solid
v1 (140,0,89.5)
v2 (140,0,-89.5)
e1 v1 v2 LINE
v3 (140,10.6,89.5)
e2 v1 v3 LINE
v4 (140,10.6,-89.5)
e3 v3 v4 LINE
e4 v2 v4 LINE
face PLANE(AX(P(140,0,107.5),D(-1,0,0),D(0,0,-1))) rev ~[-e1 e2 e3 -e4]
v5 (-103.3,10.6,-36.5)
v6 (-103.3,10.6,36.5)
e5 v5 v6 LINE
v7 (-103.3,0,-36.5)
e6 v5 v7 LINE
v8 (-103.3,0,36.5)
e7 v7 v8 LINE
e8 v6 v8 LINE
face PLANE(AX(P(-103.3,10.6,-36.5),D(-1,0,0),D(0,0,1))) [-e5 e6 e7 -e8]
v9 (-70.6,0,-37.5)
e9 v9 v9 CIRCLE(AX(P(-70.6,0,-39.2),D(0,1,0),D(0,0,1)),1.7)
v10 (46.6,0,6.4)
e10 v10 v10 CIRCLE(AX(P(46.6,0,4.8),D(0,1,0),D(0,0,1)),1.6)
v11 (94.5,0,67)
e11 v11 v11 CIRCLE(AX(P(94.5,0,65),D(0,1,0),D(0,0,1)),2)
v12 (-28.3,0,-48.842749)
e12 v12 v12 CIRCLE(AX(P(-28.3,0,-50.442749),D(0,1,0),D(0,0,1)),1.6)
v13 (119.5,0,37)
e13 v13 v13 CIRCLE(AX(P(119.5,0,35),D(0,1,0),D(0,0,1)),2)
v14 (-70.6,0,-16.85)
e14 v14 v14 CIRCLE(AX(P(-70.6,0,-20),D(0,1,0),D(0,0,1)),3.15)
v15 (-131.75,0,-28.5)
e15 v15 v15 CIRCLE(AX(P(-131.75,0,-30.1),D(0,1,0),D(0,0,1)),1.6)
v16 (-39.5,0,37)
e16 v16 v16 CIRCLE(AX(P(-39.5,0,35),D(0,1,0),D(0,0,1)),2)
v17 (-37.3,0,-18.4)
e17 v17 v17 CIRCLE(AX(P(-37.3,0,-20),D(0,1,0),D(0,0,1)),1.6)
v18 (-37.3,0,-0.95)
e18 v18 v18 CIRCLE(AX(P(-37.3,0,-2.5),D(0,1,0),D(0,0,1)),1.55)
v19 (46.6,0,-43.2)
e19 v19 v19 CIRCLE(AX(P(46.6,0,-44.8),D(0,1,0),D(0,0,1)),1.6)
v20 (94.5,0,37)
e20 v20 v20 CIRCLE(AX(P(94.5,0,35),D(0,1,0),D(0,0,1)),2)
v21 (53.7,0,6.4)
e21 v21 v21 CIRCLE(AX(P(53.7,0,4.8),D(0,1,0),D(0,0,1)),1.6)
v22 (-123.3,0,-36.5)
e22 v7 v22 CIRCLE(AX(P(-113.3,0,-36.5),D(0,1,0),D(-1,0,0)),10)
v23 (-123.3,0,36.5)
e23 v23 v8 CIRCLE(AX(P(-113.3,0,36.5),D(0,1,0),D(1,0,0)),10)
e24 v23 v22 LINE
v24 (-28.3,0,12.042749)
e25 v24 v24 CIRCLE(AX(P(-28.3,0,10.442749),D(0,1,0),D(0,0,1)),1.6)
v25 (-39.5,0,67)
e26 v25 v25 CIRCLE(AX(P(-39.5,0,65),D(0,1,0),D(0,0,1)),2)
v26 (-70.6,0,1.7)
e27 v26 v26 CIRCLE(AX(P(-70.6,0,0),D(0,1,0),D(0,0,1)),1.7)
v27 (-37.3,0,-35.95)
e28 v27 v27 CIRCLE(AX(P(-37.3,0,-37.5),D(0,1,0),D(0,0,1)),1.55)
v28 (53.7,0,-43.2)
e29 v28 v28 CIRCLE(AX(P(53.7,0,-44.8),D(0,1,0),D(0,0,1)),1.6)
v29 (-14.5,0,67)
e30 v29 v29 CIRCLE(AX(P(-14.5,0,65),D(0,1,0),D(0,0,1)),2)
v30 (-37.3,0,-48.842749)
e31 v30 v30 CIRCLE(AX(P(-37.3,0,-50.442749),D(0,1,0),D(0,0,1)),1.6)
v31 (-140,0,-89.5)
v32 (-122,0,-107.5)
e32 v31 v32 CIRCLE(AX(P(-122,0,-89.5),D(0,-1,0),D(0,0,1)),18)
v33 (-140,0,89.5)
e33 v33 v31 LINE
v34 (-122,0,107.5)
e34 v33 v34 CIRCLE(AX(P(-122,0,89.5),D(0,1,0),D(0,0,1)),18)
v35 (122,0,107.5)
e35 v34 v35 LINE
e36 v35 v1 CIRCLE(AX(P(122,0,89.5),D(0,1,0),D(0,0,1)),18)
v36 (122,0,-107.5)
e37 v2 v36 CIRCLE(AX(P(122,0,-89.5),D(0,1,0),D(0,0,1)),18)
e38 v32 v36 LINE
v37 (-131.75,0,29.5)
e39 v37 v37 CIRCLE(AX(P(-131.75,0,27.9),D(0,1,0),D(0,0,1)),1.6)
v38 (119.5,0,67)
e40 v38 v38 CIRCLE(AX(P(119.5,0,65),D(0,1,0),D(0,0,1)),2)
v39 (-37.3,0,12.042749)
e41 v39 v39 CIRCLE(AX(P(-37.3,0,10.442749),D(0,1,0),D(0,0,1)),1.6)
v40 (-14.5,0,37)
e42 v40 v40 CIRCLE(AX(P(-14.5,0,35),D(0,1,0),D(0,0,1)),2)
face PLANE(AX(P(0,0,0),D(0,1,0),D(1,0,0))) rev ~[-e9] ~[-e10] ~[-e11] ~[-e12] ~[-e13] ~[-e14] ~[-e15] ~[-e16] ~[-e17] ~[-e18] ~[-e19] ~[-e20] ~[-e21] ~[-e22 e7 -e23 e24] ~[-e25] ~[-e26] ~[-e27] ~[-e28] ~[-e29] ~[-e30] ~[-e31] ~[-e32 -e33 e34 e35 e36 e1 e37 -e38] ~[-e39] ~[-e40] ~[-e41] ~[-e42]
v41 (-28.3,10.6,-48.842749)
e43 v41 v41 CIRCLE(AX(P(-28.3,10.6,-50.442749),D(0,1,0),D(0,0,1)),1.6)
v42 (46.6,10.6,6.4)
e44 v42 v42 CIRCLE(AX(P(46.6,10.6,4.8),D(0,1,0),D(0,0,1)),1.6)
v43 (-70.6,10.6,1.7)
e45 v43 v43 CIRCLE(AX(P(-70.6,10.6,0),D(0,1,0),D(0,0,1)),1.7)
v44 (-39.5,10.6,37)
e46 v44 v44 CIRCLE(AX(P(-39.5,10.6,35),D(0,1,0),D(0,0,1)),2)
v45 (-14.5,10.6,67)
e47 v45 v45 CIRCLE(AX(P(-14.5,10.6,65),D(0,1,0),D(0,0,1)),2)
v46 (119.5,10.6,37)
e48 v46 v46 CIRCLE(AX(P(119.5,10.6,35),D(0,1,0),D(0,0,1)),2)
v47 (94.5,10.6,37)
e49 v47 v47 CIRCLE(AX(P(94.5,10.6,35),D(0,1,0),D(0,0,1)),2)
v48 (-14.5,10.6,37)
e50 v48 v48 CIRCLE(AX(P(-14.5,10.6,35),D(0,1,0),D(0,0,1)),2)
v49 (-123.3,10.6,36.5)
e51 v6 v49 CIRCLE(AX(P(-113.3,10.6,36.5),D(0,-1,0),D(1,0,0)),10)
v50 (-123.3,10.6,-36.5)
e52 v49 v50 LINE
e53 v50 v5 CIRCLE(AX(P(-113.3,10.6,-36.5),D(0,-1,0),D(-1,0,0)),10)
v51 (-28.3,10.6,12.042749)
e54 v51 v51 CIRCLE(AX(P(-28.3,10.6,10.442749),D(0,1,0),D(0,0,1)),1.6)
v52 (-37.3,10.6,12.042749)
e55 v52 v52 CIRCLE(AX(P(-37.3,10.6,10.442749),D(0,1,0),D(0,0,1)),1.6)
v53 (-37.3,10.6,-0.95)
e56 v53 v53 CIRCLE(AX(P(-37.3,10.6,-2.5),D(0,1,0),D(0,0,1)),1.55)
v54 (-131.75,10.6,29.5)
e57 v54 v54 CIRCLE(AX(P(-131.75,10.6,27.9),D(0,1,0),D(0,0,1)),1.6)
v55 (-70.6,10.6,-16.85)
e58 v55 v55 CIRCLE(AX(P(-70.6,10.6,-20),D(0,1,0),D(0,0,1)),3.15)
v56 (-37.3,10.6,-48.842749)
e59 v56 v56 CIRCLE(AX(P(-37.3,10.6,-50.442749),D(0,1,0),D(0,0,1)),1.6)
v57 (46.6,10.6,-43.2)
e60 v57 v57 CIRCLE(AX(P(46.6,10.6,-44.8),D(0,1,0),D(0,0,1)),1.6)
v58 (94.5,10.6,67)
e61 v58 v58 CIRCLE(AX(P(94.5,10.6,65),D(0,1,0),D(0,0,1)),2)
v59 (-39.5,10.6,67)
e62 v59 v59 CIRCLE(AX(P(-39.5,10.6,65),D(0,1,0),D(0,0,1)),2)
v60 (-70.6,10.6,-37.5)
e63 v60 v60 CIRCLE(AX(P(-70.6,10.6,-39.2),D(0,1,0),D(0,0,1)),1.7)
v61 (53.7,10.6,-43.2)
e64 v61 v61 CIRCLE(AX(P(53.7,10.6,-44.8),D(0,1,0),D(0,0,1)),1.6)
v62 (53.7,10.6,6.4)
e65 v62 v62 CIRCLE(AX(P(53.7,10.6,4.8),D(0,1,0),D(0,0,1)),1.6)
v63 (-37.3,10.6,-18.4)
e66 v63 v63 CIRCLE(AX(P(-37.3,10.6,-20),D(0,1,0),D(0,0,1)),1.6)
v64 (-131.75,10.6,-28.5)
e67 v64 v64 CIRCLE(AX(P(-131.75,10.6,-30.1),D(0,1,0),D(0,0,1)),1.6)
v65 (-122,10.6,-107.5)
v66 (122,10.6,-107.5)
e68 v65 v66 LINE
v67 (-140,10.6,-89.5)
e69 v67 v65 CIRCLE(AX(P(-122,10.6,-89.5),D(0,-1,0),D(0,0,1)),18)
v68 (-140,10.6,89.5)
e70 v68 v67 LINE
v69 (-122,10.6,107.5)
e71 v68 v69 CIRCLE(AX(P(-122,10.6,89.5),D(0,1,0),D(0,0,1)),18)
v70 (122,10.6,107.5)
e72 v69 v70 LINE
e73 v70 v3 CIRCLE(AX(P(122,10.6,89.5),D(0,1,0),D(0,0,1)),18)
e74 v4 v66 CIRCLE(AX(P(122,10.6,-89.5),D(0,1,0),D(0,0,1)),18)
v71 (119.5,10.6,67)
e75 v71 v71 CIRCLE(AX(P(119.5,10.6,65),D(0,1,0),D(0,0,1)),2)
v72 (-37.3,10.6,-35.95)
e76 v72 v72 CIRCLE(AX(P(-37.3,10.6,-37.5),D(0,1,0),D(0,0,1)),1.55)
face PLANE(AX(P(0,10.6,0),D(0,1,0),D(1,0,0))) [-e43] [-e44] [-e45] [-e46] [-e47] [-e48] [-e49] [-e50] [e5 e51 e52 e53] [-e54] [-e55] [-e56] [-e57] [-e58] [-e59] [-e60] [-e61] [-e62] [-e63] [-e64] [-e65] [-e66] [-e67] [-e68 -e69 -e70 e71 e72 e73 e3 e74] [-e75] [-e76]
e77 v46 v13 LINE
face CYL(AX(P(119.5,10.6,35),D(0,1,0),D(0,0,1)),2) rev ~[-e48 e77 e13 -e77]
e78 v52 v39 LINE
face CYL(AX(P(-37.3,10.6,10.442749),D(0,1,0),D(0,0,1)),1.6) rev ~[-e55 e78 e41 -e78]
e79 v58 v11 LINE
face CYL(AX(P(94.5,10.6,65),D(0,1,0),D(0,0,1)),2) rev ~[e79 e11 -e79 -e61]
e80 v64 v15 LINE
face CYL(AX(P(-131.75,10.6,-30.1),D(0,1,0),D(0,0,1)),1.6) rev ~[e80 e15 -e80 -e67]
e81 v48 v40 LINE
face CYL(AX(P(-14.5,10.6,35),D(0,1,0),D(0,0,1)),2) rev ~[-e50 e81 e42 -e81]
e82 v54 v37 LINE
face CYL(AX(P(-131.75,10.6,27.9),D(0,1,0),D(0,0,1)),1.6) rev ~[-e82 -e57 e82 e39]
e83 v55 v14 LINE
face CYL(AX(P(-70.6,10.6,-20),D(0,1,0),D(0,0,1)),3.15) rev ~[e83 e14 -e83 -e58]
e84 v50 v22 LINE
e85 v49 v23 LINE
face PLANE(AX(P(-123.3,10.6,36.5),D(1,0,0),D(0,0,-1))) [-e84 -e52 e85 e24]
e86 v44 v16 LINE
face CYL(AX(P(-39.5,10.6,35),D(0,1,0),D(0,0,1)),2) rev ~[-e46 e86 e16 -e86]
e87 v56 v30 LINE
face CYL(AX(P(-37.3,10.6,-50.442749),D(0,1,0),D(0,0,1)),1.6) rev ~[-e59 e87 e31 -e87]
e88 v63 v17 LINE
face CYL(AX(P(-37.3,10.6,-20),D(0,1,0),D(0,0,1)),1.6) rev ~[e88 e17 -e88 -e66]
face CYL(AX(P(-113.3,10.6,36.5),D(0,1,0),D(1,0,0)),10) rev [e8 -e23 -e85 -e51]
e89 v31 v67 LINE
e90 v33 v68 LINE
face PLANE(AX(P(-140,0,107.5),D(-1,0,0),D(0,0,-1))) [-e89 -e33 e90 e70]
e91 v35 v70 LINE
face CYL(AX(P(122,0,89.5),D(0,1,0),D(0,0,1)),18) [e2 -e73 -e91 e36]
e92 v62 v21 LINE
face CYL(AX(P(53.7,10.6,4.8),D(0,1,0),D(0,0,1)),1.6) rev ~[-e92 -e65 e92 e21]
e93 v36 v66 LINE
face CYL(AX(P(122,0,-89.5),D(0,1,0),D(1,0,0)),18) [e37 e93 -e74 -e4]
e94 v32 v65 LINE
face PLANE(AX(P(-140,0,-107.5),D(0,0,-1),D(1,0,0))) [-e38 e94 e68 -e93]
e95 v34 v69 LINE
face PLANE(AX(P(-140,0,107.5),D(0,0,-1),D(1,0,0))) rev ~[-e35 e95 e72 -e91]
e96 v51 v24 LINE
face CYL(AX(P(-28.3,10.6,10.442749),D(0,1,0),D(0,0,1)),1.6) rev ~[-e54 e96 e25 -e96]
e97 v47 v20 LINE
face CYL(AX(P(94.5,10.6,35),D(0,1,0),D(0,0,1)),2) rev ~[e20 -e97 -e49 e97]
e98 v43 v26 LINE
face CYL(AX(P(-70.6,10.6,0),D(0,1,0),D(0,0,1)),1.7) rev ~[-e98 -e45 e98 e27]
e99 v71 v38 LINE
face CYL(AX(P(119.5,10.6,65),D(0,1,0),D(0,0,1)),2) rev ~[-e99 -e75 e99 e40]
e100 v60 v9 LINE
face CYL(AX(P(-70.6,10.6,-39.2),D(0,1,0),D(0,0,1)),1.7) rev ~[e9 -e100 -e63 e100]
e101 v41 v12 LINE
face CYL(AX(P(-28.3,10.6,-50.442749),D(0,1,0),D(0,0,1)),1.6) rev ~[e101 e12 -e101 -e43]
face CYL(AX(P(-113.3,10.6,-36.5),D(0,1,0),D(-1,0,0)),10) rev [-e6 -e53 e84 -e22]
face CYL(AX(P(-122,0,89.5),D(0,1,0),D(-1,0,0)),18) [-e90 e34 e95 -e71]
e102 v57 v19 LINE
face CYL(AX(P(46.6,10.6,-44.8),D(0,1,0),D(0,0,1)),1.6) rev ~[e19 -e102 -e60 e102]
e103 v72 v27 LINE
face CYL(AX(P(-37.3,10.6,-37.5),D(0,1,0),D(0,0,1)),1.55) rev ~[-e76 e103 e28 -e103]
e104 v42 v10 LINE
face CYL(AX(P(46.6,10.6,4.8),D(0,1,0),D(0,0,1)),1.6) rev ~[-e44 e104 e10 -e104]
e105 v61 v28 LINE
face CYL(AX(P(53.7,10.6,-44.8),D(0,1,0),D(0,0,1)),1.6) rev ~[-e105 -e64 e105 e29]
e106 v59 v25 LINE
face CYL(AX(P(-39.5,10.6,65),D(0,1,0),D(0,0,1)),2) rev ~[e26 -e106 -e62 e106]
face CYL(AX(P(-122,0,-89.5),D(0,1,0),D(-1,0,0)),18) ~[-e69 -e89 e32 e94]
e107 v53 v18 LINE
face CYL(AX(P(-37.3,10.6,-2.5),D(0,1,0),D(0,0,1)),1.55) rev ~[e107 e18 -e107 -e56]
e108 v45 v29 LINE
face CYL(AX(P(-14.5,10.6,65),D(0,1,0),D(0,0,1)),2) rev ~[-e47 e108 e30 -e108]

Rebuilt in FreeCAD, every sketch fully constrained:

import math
import FreeCAD as App
import Part
import Sketcher
from FreeCAD import Vector
Q = App.Units.Quantity


def edges_at(feature, points):
    """Names of the edges that pass closest to the given points."""
    edges = feature.Shape.Edges
    near = lambda p: min(range(len(edges)), key=lambda i: edges[i].distToShape(Part.Vertex(*p))[0])
    return sorted({f"Edge{near(p) + 1}" for p in points})

doc = App.newDocument("Part")
body = doc.addObject("PartDesign::Body", "Body")

# Sketch on XZ plane
sketch1 = body.newObject("Sketcher::SketchObject", "Sketch")
sketch1.AttachmentSupport = (doc.getObject("XZ_Plane"), [""])
sketch1.MapMode = "FlatFace"
sketch1.addGeometry([
    Part.LineSegment(Vector(-140, -107.5, 0), Vector(-140, 107.5, 0)),
    Part.LineSegment(Vector(-140, 107.5, 0), Vector(140, 107.5, 0)),
    Part.LineSegment(Vector(140, 107.5, 0), Vector(140, -107.5, 0)),
    Part.LineSegment(Vector(140, -107.5, 0), Vector(-140, -107.5, 0)),
], False)
sketch1.addConstraint([
    Sketcher.Constraint("Coincident", 0, 2, 1, 1),
    Sketcher.Constraint("Coincident", 1, 2, 2, 1),
    Sketcher.Constraint("Coincident", 2, 2, 3, 1),
    Sketcher.Constraint("Coincident", 3, 2, 0, 1),
    Sketcher.Constraint("Vertical", 0),
    Sketcher.Constraint("Horizontal", 1),
    Sketcher.Constraint("Vertical", 2),
    Sketcher.Constraint("Horizontal", 3),
    Sketcher.Constraint("Symmetric", 0, 2, 2, 2, -1, 1),
    Sketcher.Constraint("DistanceX", 1, 1, 1, 2, Q("280 mm")),
    Sketcher.Constraint("DistanceY", 0, 1, 0, 2, Q("215 mm")),
])
pad1 = body.newObject("PartDesign::Pad", "Pad")
pad1.Profile = sketch1
pad1.Length = 10.6
pad1.Reversed = True
doc.recompute()

fillet = body.newObject("PartDesign::Fillet", "Fillet")
fillet.Base = (pad1, edges_at(pad1, [
    (-140, 5.3, -107.5),
    (140, 5.3, -107.5),
    (140, 5.3, 107.5),
    (-140, 5.3, 107.5),
]))
fillet.Radius = 18

# Sketch on XZ plane
sketch2 = body.newObject("Sketcher::SketchObject", "Sketch001")
sketch2.AttachmentSupport = (doc.getObject("XZ_Plane"), [""])
sketch2.MapMode = "FlatFace"
sketch2.AttachmentOffset = App.Placement(Vector(0, 0, -10.6), App.Rotation())
sketch2.addGeometry([
    Part.LineSegment(Vector(-123.3, -36.5, 0), Vector(-123.3, 36.5, 0)),
    Part.ArcOfCircle(Part.Circle(Vector(-113.3, 36.5, 0), Vector(0, 0, 1), 10), math.radians(0), math.radians(180)),
    Part.LineSegment(Vector(-103.3, 36.5, 0), Vector(-103.3, -36.5, 0)),
    Part.ArcOfCircle(Part.Circle(Vector(-113.3, -36.5, 0), Vector(0, 0, 1), 10), math.radians(180), math.radians(360)),
], False)
sketch2.addConstraint([
    Sketcher.Constraint("Tangent", 0, 2, 1, 2),
    Sketcher.Constraint("Tangent", 1, 1, 2, 1),
    Sketcher.Constraint("Tangent", 2, 2, 3, 2),
    Sketcher.Constraint("Tangent", 3, 1, 0, 1),
    Sketcher.Constraint("Vertical", 0),
    Sketcher.Constraint("Vertical", 2),
    Sketcher.Constraint("Radius", 1, Q("10 mm")),
    Sketcher.Constraint("DistanceY", 0, 1, 0, 2, Q("73 mm")),
    Sketcher.Constraint("DistanceX", 1, 3, -1, 1, Q("113.3 mm")),
    Sketcher.Constraint("DistanceY", -1, 1, 1, 3, Q("36.5 mm")),
])
pocket1 = body.newObject("PartDesign::Pocket", "Pocket")
pocket1.Profile = sketch2
pocket1.Type = "ThroughAll"
pocket1.Reversed = True

# Sketch on XZ plane
sketch3 = body.newObject("Sketcher::SketchObject", "Sketch002")
sketch3.AttachmentSupport = (doc.getObject("XZ_Plane"), [""])
sketch3.MapMode = "FlatFace"
sketch3.AttachmentOffset = App.Placement(Vector(0, 0, -10.6), App.Rotation())
sketch3.addGeometry([
    Part.Circle(Vector(-131.75, 27.9, 0), Vector(0, 0, 1), 1.6),  # 0
    Part.Circle(Vector(-131.75, -30.1, 0), Vector(0, 0, 1), 1.6),  # 1
    Part.Circle(Vector(-70.6, -20, 0), Vector(0, 0, 1), 3.15),  # 2
    Part.Circle(Vector(-70.6, 0, 0), Vector(0, 0, 1), 1.7),  # 3
    Part.Circle(Vector(-28.3, 10.442749, 0), Vector(0, 0, 1), 1.6),  # 4
    Part.Circle(Vector(-37.3, 10.442749, 0), Vector(0, 0, 1), 1.6),  # 5
    Part.Circle(Vector(-37.3, -2.5, 0), Vector(0, 0, 1), 1.55),  # 6
    Part.Circle(Vector(-37.3, -20, 0), Vector(0, 0, 1), 1.6),  # 7
    Part.Circle(Vector(-37.3, -37.5, 0), Vector(0, 0, 1), 1.55),  # 8
    Part.Circle(Vector(-28.3, -50.442749, 0), Vector(0, 0, 1), 1.6),  # 9
    Part.Circle(Vector(-37.3, -50.442749, 0), Vector(0, 0, 1), 1.6),  # 10
    Part.Circle(Vector(46.6, 4.8, 0), Vector(0, 0, 1), 1.6),  # 11
    Part.Circle(Vector(46.6, -44.8, 0), Vector(0, 0, 1), 1.6),  # 12
    Part.Circle(Vector(-70.6, -39.2, 0), Vector(0, 0, 1), 1.7),  # 13
    Part.Circle(Vector(53.7, -44.8, 0), Vector(0, 0, 1), 1.6),  # 14
    Part.Circle(Vector(53.7, 4.8, 0), Vector(0, 0, 1), 1.6),  # 15
    Part.Circle(Vector(-39.5, 35, 0), Vector(0, 0, 1), 2),  # 16
    Part.Circle(Vector(-14.5, 35, 0), Vector(0, 0, 1), 2),  # 17
    Part.Circle(Vector(-39.5, 65, 0), Vector(0, 0, 1), 2),  # 18
    Part.Circle(Vector(-14.5, 65, 0), Vector(0, 0, 1), 2),  # 19
    Part.Circle(Vector(94.5, 35, 0), Vector(0, 0, 1), 2),  # 20
    Part.Circle(Vector(119.5, 35, 0), Vector(0, 0, 1), 2),  # 21
    Part.Circle(Vector(94.5, 65, 0), Vector(0, 0, 1), 2),  # 22
    Part.Circle(Vector(119.5, 65, 0), Vector(0, 0, 1), 2),  # 23
], False)
sketch3.addConstraint([
    Sketcher.Constraint("Equal", 0, 1),
    Sketcher.Constraint("Equal", 1, 4),
    Sketcher.Constraint("Equal", 4, 5),
    Sketcher.Constraint("Equal", 5, 7),
    Sketcher.Constraint("Equal", 6, 8),
    Sketcher.Constraint("Equal", 7, 9),
    Sketcher.Constraint("Equal", 9, 10),
    Sketcher.Constraint("Equal", 10, 11),
    Sketcher.Constraint("Equal", 11, 12),
    Sketcher.Constraint("Equal", 3, 13),
    Sketcher.Constraint("Equal", 12, 14),
    Sketcher.Constraint("Equal", 14, 15),
    Sketcher.Constraint("Equal", 16, 17),
    Sketcher.Constraint("Equal", 17, 18),
    Sketcher.Constraint("Equal", 18, 19),
    Sketcher.Constraint("Equal", 19, 20),
    Sketcher.Constraint("Equal", 20, 21),
    Sketcher.Constraint("Equal", 21, 22),
    Sketcher.Constraint("Equal", 22, 23),
    Sketcher.Constraint("PointOnObject", 3, 3, -1),
    Sketcher.Constraint("Horizontal", 4, 3, 5, 3),
    Sketcher.Constraint("Horizontal", 2, 3, 7, 3),
    Sketcher.Constraint("Horizontal", 9, 3, 10, 3),
    Sketcher.Constraint("Horizontal", 12, 3, 14, 3),
    Sketcher.Constraint("Horizontal", 11, 3, 15, 3),
    Sketcher.Constraint("Horizontal", 16, 3, 17, 3),
    Sketcher.Constraint("Horizontal", 18, 3, 19, 3),
    Sketcher.Constraint("Horizontal", 17, 3, 20, 3),
    Sketcher.Constraint("Horizontal", 20, 3, 21, 3),
    Sketcher.Constraint("Horizontal", 19, 3, 22, 3),
    Sketcher.Constraint("Horizontal", 22, 3, 23, 3),
    Sketcher.Constraint("Vertical", 0, 3, 1, 3),
    Sketcher.Constraint("Vertical", 2, 3, 3, 3),
    Sketcher.Constraint("Vertical", 5, 3, 6, 3),
    Sketcher.Constraint("Vertical", 6, 3, 7, 3),
    Sketcher.Constraint("Vertical", 7, 3, 8, 3),
    Sketcher.Constraint("Vertical", 4, 3, 9, 3),
    Sketcher.Constraint("Vertical", 8, 3, 10, 3),
    Sketcher.Constraint("Vertical", 11, 3, 12, 3),
    Sketcher.Constraint("Vertical", 3, 3, 13, 3),
    Sketcher.Constraint("Vertical", 14, 3, 15, 3),
    Sketcher.Constraint("Vertical", 16, 3, 18, 3),
    Sketcher.Constraint("Vertical", 17, 3, 19, 3),
    Sketcher.Constraint("Vertical", 20, 3, 22, 3),
    Sketcher.Constraint("Vertical", 21, 3, 23, 3),
    Sketcher.Constraint("Diameter", 16, Q("4 mm")),
    Sketcher.Constraint("Diameter", 0, Q("3.2 mm")),
    Sketcher.Constraint("Diameter", 2, Q("6.3 mm")),
    Sketcher.Constraint("Diameter", 3, Q("3.4 mm")),
    Sketcher.Constraint("Diameter", 6, Q("3.1 mm")),
    Sketcher.Constraint("DistanceY", 2, 3, -1, 1, Q("20 mm")),
    Sketcher.Constraint("DistanceY", -1, 1, 16, 3, Q("35 mm")),
    Sketcher.Constraint("DistanceY", -1, 1, 18, 3, Q("65 mm")),
    Sketcher.Constraint("DistanceY", 1, 3, 0, 3, Q("58 mm")),
    Sketcher.Constraint("DistanceX", 5, 3, 4, 3, Q("9 mm")),
    Sketcher.Constraint("DistanceY", 8, 3, 6, 3, Q("35 mm")),
    Sketcher.Constraint("DistanceX", 9, 3, 14, 3, Q("82 mm")),
    Sketcher.Constraint("DistanceX", 16, 3, 17, 3, Q("25 mm")),
    Sketcher.Constraint("DistanceX", 17, 3, 20, 3, Q("109 mm")),
    Sketcher.Constraint("DistanceX", 20, 3, 21, 3, Q("25 mm")),
    Sketcher.Constraint("DistanceY", -1, 1, 0, 3, Q("27.9 mm")),
    Sketcher.Constraint("DistanceX", 2, 3, -1, 1, Q("70.6 mm")),
    Sketcher.Constraint("DistanceX", 4, 3, -1, 1, Q("28.3 mm")),
    Sketcher.Constraint("DistanceY", 6, 3, -1, 1, Q("2.5 mm")),
    Sketcher.Constraint("DistanceX", -1, 1, 11, 3, Q("46.6 mm")),
    Sketcher.Constraint("DistanceY", -1, 1, 11, 3, Q("4.8 mm")),
    Sketcher.Constraint("DistanceY", 12, 3, -1, 1, Q("44.8 mm")),
    Sketcher.Constraint("DistanceY", 13, 3, -1, 1, Q("39.2 mm")),
    Sketcher.Constraint("DistanceX", 16, 3, -1, 1, Q("39.5 mm")),
    Sketcher.Constraint("DistanceX", 0, 3, -1, 1, Q("131.75 mm")),
    Sketcher.Constraint("DistanceY", -1, 1, 4, 3, Q("10.442749 mm")),
    Sketcher.Constraint("DistanceY", 9, 3, -1, 1, Q("50.442749 mm")),
])
pocket2 = body.newObject("PartDesign::Pocket", "Pocket001")
pocket2.Profile = sketch3
pocket2.Type = "ThroughAll"
pocket2.Reversed = True

doc.recompute()
